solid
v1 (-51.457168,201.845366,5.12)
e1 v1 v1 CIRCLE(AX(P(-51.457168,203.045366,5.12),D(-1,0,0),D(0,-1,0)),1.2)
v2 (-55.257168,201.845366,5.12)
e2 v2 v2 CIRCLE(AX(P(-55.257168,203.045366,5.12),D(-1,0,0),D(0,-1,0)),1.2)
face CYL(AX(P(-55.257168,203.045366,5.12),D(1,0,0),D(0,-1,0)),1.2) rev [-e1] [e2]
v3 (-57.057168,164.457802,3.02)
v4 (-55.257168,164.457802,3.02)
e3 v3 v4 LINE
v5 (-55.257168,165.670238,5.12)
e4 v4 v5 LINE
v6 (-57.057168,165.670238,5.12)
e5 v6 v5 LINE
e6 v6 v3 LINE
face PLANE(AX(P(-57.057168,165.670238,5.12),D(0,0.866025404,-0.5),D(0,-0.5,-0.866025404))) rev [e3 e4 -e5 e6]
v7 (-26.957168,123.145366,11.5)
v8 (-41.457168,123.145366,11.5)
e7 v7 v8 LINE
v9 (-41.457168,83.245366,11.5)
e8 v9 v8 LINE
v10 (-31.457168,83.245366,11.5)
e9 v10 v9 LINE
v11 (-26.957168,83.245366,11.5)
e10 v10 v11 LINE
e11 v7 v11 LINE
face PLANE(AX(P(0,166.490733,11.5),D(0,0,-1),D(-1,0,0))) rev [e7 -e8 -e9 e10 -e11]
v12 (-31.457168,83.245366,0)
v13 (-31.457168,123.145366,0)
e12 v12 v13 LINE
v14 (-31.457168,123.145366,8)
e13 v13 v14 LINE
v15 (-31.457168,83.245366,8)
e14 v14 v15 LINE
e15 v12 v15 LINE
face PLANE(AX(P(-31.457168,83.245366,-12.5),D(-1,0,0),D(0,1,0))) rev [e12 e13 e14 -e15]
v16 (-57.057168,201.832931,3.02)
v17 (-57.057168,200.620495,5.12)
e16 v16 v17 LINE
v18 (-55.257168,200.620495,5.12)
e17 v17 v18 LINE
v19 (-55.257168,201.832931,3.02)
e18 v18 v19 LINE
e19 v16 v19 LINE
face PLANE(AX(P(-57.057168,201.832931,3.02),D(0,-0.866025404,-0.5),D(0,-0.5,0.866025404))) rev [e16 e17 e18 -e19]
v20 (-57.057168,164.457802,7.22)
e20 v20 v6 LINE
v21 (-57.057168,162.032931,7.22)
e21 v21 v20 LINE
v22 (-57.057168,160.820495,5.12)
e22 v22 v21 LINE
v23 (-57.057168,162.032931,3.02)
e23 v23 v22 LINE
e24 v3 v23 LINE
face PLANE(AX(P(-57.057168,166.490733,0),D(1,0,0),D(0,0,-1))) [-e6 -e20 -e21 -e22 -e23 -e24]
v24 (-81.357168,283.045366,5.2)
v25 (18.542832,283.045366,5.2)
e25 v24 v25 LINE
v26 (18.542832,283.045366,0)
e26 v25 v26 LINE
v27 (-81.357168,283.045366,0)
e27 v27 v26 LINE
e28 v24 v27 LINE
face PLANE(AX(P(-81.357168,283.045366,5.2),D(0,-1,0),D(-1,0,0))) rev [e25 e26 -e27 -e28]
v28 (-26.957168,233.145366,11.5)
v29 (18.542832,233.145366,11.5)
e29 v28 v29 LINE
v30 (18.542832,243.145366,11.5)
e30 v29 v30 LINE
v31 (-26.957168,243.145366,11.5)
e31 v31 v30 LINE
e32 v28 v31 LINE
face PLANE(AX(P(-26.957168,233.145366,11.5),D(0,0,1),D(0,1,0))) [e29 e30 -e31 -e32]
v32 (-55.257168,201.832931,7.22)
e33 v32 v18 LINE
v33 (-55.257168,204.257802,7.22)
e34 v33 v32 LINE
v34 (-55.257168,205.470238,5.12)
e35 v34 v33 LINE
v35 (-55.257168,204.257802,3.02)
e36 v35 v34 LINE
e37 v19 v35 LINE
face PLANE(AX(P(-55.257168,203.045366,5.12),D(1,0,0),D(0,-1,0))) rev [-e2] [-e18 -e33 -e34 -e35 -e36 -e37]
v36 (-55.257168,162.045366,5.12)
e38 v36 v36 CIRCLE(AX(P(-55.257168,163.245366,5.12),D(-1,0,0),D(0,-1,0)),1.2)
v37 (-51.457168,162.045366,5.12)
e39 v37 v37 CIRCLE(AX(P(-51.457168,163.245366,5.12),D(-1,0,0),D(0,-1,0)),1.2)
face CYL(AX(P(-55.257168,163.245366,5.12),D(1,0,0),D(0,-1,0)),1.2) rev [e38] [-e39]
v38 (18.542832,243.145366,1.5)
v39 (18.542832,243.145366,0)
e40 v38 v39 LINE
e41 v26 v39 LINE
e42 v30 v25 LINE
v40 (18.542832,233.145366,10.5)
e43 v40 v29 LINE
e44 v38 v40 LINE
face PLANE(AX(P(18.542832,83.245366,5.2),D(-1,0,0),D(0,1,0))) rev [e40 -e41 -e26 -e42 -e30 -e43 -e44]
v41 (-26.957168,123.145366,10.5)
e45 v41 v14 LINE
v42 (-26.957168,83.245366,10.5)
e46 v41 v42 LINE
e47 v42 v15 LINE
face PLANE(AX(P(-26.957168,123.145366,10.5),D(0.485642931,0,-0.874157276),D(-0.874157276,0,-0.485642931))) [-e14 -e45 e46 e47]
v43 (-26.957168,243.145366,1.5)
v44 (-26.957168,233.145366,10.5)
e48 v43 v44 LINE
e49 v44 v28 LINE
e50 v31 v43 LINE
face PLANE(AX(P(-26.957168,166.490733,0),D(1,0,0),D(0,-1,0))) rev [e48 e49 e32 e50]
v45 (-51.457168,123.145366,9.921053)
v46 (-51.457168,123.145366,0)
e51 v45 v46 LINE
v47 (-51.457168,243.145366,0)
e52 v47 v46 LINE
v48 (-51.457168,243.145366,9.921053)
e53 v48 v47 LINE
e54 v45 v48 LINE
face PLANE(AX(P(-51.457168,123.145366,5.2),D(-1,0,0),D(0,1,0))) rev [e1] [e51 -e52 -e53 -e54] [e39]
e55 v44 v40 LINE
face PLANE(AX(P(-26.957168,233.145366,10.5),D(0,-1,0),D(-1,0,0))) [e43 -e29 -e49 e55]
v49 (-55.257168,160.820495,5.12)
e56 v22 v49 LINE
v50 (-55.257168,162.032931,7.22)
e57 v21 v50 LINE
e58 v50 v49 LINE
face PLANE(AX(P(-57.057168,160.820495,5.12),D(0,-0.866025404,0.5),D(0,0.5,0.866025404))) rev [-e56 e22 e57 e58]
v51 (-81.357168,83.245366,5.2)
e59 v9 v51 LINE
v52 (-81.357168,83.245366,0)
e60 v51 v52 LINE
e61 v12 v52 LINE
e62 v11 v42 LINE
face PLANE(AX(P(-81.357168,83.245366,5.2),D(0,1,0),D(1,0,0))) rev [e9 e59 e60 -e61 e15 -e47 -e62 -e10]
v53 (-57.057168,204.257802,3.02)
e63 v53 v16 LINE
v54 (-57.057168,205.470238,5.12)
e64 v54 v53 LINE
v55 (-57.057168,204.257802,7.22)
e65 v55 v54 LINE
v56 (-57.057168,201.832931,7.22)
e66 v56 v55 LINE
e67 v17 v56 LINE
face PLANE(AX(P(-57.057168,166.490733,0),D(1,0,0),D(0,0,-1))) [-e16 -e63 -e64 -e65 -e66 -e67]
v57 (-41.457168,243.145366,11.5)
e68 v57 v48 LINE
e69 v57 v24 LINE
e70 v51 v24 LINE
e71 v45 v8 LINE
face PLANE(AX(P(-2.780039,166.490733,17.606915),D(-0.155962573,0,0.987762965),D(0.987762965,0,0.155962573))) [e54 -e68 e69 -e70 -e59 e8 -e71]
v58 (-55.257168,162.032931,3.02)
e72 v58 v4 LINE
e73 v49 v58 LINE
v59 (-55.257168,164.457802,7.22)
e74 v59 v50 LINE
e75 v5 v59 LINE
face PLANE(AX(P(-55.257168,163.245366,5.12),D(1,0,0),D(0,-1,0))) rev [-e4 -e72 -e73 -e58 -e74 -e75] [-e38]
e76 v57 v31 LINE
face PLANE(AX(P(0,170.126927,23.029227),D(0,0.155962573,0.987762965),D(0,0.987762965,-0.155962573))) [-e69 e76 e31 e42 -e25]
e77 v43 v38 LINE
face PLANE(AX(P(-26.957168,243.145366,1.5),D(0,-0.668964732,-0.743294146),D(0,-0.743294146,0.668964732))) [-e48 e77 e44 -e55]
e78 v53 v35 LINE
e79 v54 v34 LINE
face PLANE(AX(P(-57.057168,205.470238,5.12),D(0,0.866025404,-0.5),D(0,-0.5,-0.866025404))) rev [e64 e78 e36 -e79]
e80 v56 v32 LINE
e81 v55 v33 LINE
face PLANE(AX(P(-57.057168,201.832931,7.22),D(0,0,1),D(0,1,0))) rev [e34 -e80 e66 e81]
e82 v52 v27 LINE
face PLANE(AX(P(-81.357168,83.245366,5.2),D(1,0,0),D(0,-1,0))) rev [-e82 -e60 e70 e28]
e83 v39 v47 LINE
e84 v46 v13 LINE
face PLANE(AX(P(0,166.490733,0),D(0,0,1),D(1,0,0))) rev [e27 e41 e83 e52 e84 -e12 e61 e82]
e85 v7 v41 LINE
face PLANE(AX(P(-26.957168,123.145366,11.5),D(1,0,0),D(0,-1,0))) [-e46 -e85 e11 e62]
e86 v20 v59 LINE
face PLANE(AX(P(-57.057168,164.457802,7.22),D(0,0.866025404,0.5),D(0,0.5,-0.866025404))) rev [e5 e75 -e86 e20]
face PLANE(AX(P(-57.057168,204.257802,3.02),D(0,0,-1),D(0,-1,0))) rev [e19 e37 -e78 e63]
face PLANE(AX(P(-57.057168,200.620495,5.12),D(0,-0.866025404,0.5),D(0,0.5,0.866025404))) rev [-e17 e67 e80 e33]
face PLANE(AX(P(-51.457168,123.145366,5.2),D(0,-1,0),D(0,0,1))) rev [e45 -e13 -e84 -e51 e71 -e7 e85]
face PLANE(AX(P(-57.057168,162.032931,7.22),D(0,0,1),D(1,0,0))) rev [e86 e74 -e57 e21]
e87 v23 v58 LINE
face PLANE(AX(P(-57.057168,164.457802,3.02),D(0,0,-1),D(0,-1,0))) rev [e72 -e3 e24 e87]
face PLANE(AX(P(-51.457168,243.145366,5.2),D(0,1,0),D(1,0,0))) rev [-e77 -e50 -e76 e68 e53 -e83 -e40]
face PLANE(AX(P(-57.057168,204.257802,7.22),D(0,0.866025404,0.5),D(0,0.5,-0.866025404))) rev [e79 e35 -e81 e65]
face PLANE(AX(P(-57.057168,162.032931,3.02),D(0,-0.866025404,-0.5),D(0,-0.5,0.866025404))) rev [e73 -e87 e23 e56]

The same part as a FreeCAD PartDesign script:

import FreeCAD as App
import Part
import Sketcher

V = App.Vector
Q = App.Units.Quantity


def add_polygon(sketch, points):
    """Adds a closed chain of lines whose ends are joined by coincident constraints."""
    first, n = sketch.GeometryCount, len(points)
    for a, b in zip(points, points[1:] + points[:1]):
        sketch.addGeometry(Part.LineSegment(App.Vector(*a, 0), App.Vector(*b, 0)), False)
    for i in range(n):
        sketch.addConstraint(Sketcher.Constraint("Coincident", first + i, 2, first + (i + 1) % n, 1))

doc = App.newDocument("Part")
body = doc.addObject("PartDesign::Body", "Body")

sketch1 = body.newObject("Sketcher::SketchObject", "Sketch")
sketch1.AttachmentSupport = (doc.getObject("XY_Plane"), [""])
sketch1.MapMode = "FlatFace"
add_polygon(sketch1, [(18.542832, 43.345366), (18.542832, 83.245366), (-81.357168, 83.245366), (-81.357168, -116.554634), (18.542832, -116.554634), (18.542832, -76.654634), (-51.457168, -76.654634), (-51.457168, 43.345366)])
sketch1.addConstraint([
    Sketcher.Constraint("Vertical", 0),
    Sketcher.Constraint("Horizontal", 1),
    Sketcher.Constraint("Vertical", 2),
    Sketcher.Constraint("Horizontal", 3),
    Sketcher.Constraint("Vertical", 4),
    Sketcher.Constraint("Horizontal", 5),
    Sketcher.Constraint("Vertical", 6),
    Sketcher.Constraint("Horizontal", 7),
    Sketcher.Constraint("Vertical", 0, 2, 3, 2),
    Sketcher.Constraint("Equal", 0, 4),
    Sketcher.Constraint("DistanceX", 5, 2, 5, 1, Q("70 mm")),
    Sketcher.Constraint("DistanceY", 6, 1, 6, 2, Q("120 mm")),
    Sketcher.Constraint("DistanceX", 1, 2, 1, 1, Q("99.9 mm")),
    Sketcher.Constraint("DistanceY", 0, 1, 0, 2, Q("39.9 mm")),
    Sketcher.Constraint("DistanceX", -1, 1, 0, 2, Q("18.542832 mm")),
    Sketcher.Constraint("DistanceY", -1, 1, 0, 2, Q("83.245366 mm")),
])
pad1 = body.newObject("PartDesign::Pad", "Pad")
pad1.Profile = sketch1
pad1.Length = 5.2

sketch2 = body.newObject("Sketcher::SketchObject", "Sketch001")
sketch2.AttachmentSupport = (doc.getObject("XY_Plane"), [""])
sketch2.MapMode = "FlatFace"
sketch2.AttachmentOffset = App.Placement(V(0, 0, 11.5), App.Rotation())
add_polygon(sketch2, [(-41.457168, 83.245366), (-41.457168, -76.654634), (18.542832, -76.654634), (18.542832, 83.245366)])
sketch2.addConstraint([
    Sketcher.Constraint("Vertical", 0),
    Sketcher.Constraint("Horizontal", 1),
    Sketcher.Constraint("Vertical", 2),
    Sketcher.Constraint("Horizontal", 3),
    Sketcher.Constraint("DistanceX", 1, 1, 1, 2, Q("60 mm")),
    Sketcher.Constraint("DistanceY", 0, 2, 0, 1, Q("159.9 mm")),
    Sketcher.Constraint("DistanceX", 0, 2, -1, 1, Q("41.457168 mm")),
    Sketcher.Constraint("DistanceY", 0, 2, -1, 1, Q("76.654634 mm")),
])

sketch3 = body.newObject("Sketcher::SketchObject", "Sketch002")
sketch3.AttachmentSupport = (doc.getObject("XY_Plane"), [""])
sketch3.MapMode = "FlatFace"
sketch3.AttachmentOffset = App.Placement(V(0, 0, 5.2), App.Rotation())
add_polygon(sketch3, [(-81.357168, 83.245366), (-81.357168, -116.554634), (18.542832, -116.554634), (18.542832, 83.245366)])
sketch3.addConstraint([
    Sketcher.Constraint("Vertical", 0),
    Sketcher.Constraint("Horizontal", 1),
    Sketcher.Constraint("Vertical", 2),
    Sketcher.Constraint("Horizontal", 3),
    Sketcher.Constraint("DistanceX", 1, 1, 1, 2, Q("99.9 mm")),
    Sketcher.Constraint("DistanceY", 0, 2, 0, 1, Q("199.8 mm")),
    Sketcher.Constraint("DistanceX", 0, 2, -1, 1, Q("81.357168 mm")),
    Sketcher.Constraint("DistanceY", 0, 2, -1, 1, Q("116.554634 mm")),
])

additiveloft = body.newObject("PartDesign::AdditiveLoft", "AdditiveLoft")
additiveloft.Profile = sketch2
additiveloft.Sections = [sketch3]

sketch4 = body.newObject("Sketcher::SketchObject", "Sketch003")
sketch4.AttachmentSupport = (doc.getObject("YZ_Plane"), [""])
sketch4.MapMode = "FlatFace"
sketch4.AttachmentOffset = App.Placement(V(0, 0, -51.457168), App.Rotation())
add_polygon(sketch4, [(43.345366, 49.271239), (-76.654634, 49.271239), (-76.654634, 0), (43.345366, 0)])
sketch4.addConstraint([
    Sketcher.Constraint("Horizontal", 0),
    Sketcher.Constraint("Vertical", 1),
    Sketcher.Constraint("Horizontal", 2),
    Sketcher.Constraint("Vertical", 3),
    Sketcher.Constraint("PointOnObject", 1, 2, -1),
    Sketcher.Constraint("DistanceX", 0, 2, 0, 1, Q("120 mm")),
    Sketcher.Constraint("DistanceY", 1, 2, 1, 1, Q("49.271239 mm")),
    Sketcher.Constraint("DistanceX", 0, 2, -1, 1, Q("76.654634 mm")),
])
pocket1 = body.newObject("PartDesign::Pocket", "Pocket")
pocket1.Profile = sketch4
pocket1.Length = 78
pocket1.Reversed = True

sketch5 = body.newObject("Sketcher::SketchObject", "Sketch004")
sketch5.AttachmentSupport = (doc.getObject("YZ_Plane"), [""])
sketch5.MapMode = "FlatFace"
sketch5.AttachmentOffset = App.Placement(V(0, 0, -51.457168), App.Rotation())
add_polygon(sketch5, [(-34.129762, 5.12), (-35.342198, 7.22), (-37.767069, 7.22), (-38.979505, 5.12), (-37.767069, 3.02), (-35.342198, 3.02)])
add_polygon(sketch5, [(5.670238, 5.12), (4.457802, 7.22), (2.032931, 7.22), (0.820495, 5.12), (2.032931, 3.02), (4.457802, 3.02)])
sketch5.addConstraint([
    Sketcher.Constraint("Horizontal", 1),
    Sketcher.Constraint("Horizontal", 4),
    Sketcher.Constraint("Horizontal", 7),
    Sketcher.Constraint("Horizontal", 10),
    Sketcher.Constraint("Parallel", 0, 3),
    Sketcher.Constraint("Parallel", 2, 5),
    Sketcher.Constraint("Parallel", 3, 6),
    Sketcher.Constraint("Parallel", 5, 8),
    Sketcher.Constraint("Parallel", 6, 9),
    Sketcher.Constraint("Parallel", 8, 11),
    Sketcher.Constraint("Horizontal", 2, 2, 5, 2),
    Sketcher.Constraint("Horizontal", 1, 2, 6, 2),
    Sketcher.Constraint("Horizontal", 5, 2, 8, 2),
    Sketcher.Constraint("Horizontal", 4, 2, 9, 2),
    Sketcher.Constraint("Horizontal", 8, 2, 11, 2),
    Sketcher.Constraint("Vertical", 1, 2, 3, 2),
    Sketcher.Constraint("Vertical", 0, 2, 4, 2),
    Sketcher.Constraint("Equal", 4, 7),
    Sketcher.Constraint("Angle", 0, Q("120 deg")),
    Sketcher.Constraint("DistanceY", 2, 2, 1, 2, Q("2.1 mm")),
    Sketcher.Constraint("DistanceX", 0, 2, 6, 2, Q("39.8 mm")),
    Sketcher.Constraint("DistanceY", -1, 1, 0, 2, Q("7.22 mm")),
    Sketcher.Constraint("DistanceX", 1, 2, 1, 1, Q("2.424871 mm")),
    Sketcher.Constraint("DistanceX", 1, 2, -1, 1, Q("37.767069 mm")),
])
pocket2 = body.newObject("PartDesign::Pocket", "Pocket001")
pocket2.Profile = sketch5
pocket2.Length = 5.6

sketch6 = body.newObject("Sketcher::SketchObject", "Sketch005")
sketch6.AttachmentSupport = (doc.getObject("YZ_Plane"), [""])
sketch6.MapMode = "FlatFace"
sketch6.AttachmentOffset = App.Placement(V(0, 0, -51.457168), App.Rotation())
sketch6.addGeometry([
    Part.Circle(V(3.245366, 5.12, 0), V(0, 0, 1), 2.424871),
    Part.Circle(V(3.245366, 5.12, 0), V(0, 0, 1), 1.2),
    Part.Circle(V(-36.554634, 5.12, 0), V(0, 0, 1), 2.424871),
    Part.Circle(V(-36.554634, 5.12, 0), V(0, 0, 1), 1.2),
], False)
sketch6.addConstraint([
    Sketcher.Constraint("Coincident", 1, 3, 0, 3),
    Sketcher.Constraint("Coincident", 3, 3, 2, 3),
    Sketcher.Constraint("Equal", 0, 2),
    Sketcher.Constraint("Equal", 1, 3),
    Sketcher.Constraint("Horizontal", 1, 3, 2, 3),
    Sketcher.Constraint("Diameter", 1, Q("2.4 mm")),
    Sketcher.Constraint("DistanceX", 2, 3, 0, 3, Q("39.8 mm")),
    Sketcher.Constraint("DistanceY", -1, 1, 0, 3, Q("5.12 mm")),
    Sketcher.Constraint("Diameter", 0, Q("4.849742 mm")),
    Sketcher.Constraint("DistanceX", -1, 1, 0, 3, Q("3.245366 mm")),
])
pad2 = body.newObject("PartDesign::Pad", "Pad001")
pad2.Profile = sketch6
pad2.Length = 3.8
pad2.Reversed = True

sketch7 = body.newObject("Sketcher::SketchObject", "Sketch006")
sketch7.AttachmentSupport = (doc.getObject("XY_Plane"), [""])
sketch7.MapMode = "FlatFace"
sketch7.AttachmentOffset = App.Placement(V(0, 0, 11.5), App.Rotation())
add_polygon(sketch7, [(-31.457168, 83.245366), (-31.457168, 43.345366), (18.542832, 43.345366), (18.542832, 83.245366)])
sketch7.addConstraint([
    Sketcher.Constraint("Vertical", 0),
    Sketcher.Constraint("Horizontal", 1),
    Sketcher.Constraint("Vertical", 2),
    Sketcher.Constraint("Horizontal", 3),
    Sketcher.Constraint("DistanceX", 1, 1, 1, 2, Q("50 mm")),
    Sketcher.Constraint("DistanceY", 0, 2, 0, 1, Q("39.9 mm")),
    Sketcher.Constraint("DistanceX", 0, 2, -1, 1, Q("31.457168 mm")),
    Sketcher.Constraint("DistanceY", -1, 1, 0, 2, Q("43.345366 mm")),
])
pocket3 = body.newObject("PartDesign::Pocket", "Pocket002")
pocket3.Profile = sketch7
pocket3.Length = 24

sketch8 = body.newObject("Sketcher::SketchObject", "Sketch007")
sketch8.AttachmentSupport = (doc.getObject("XZ_Plane"), [""])
sketch8.MapMode = "FlatFace"
sketch8.AttachmentOffset = App.Placement(V(0, 0, -83.245366), App.Rotation())
add_polygon(sketch8, [(-31.457168, 11.5), (-26.957168, 11.5), (-26.957168, 10.5), (-31.457168, 8)])
sketch8.addConstraint([
    Sketcher.Constraint("Horizontal", 0),
    Sketcher.Constraint("Vertical", 1),
    Sketcher.Constraint("Vertical", 3),
    Sketcher.Constraint("DistanceY", 1, 2, 1, 1, Q("1 mm")),
    Sketcher.Constraint("DistanceX", 0, 1, 0, 2, Q("4.5 mm")),
    Sketcher.Constraint("DistanceY", 3, 1, 3, 2, Q("3.5 mm")),
    Sketcher.Constraint("DistanceY", -1, 1, 2, 2, Q("8 mm")),
    Sketcher.Constraint("DistanceX", 0, 2, -1, 1, Q("26.957168 mm")),
])
pad3 = body.newObject("PartDesign::Pad", "Pad002")
pad3.Profile = sketch8
pad3.Length = 39.9

sketch9 = body.newObject("Sketcher::SketchObject", "Sketch008")
sketch9.AttachmentSupport = (doc.getObject("YZ_Plane"), [""])
sketch9.MapMode = "FlatFace"
sketch9.AttachmentOffset = App.Placement(V(0, 0, 18.542832), App.Rotation())
add_polygon(sketch9, [(-76.654634, 11.5), (-76.654634, 1.5), (-66.654634, 10.5), (-66.654634, 11.5)])
sketch9.addConstraint([
    Sketcher.Constraint("Vertical", 0),
    Sketcher.Constraint("Vertical", 2),
    Sketcher.Constraint("Horizontal", 3),
    Sketcher.Constraint("Equal", 3, 0),
    Sketcher.Constraint("DistanceX", 3, 2, 3, 1, Q("10 mm")),
    Sketcher.Constraint("DistanceY", 2, 1, 2, 2, Q("1 mm")),
    Sketcher.Constraint("DistanceY", -1, 1, 0, 2, Q("1.5 mm")),
    Sketcher.Constraint("DistanceX", 0, 2, -1, 1, Q("76.654634 mm")),
])
pad4 = body.newObject("PartDesign::Pad", "Pad003")
pad4.Profile = sketch9
pad4.Length = 45.5
pad4.Reversed = True
body2 = doc.addObject("PartDesign::Body", "Body001")
doc.recompute()

mirroring = doc.addObject("Part::Mirroring", "Mirroring")
mirroring.Source = body
mirroring.Base = V(-81.357168, 83.245366, 5.2)
mirroring.Normal = V(0, -1, 0)
body2.BaseFeature = mirroring
doc.recompute()
body.Visibility = False
mirroring.Visibility = False

doc.recompute()
